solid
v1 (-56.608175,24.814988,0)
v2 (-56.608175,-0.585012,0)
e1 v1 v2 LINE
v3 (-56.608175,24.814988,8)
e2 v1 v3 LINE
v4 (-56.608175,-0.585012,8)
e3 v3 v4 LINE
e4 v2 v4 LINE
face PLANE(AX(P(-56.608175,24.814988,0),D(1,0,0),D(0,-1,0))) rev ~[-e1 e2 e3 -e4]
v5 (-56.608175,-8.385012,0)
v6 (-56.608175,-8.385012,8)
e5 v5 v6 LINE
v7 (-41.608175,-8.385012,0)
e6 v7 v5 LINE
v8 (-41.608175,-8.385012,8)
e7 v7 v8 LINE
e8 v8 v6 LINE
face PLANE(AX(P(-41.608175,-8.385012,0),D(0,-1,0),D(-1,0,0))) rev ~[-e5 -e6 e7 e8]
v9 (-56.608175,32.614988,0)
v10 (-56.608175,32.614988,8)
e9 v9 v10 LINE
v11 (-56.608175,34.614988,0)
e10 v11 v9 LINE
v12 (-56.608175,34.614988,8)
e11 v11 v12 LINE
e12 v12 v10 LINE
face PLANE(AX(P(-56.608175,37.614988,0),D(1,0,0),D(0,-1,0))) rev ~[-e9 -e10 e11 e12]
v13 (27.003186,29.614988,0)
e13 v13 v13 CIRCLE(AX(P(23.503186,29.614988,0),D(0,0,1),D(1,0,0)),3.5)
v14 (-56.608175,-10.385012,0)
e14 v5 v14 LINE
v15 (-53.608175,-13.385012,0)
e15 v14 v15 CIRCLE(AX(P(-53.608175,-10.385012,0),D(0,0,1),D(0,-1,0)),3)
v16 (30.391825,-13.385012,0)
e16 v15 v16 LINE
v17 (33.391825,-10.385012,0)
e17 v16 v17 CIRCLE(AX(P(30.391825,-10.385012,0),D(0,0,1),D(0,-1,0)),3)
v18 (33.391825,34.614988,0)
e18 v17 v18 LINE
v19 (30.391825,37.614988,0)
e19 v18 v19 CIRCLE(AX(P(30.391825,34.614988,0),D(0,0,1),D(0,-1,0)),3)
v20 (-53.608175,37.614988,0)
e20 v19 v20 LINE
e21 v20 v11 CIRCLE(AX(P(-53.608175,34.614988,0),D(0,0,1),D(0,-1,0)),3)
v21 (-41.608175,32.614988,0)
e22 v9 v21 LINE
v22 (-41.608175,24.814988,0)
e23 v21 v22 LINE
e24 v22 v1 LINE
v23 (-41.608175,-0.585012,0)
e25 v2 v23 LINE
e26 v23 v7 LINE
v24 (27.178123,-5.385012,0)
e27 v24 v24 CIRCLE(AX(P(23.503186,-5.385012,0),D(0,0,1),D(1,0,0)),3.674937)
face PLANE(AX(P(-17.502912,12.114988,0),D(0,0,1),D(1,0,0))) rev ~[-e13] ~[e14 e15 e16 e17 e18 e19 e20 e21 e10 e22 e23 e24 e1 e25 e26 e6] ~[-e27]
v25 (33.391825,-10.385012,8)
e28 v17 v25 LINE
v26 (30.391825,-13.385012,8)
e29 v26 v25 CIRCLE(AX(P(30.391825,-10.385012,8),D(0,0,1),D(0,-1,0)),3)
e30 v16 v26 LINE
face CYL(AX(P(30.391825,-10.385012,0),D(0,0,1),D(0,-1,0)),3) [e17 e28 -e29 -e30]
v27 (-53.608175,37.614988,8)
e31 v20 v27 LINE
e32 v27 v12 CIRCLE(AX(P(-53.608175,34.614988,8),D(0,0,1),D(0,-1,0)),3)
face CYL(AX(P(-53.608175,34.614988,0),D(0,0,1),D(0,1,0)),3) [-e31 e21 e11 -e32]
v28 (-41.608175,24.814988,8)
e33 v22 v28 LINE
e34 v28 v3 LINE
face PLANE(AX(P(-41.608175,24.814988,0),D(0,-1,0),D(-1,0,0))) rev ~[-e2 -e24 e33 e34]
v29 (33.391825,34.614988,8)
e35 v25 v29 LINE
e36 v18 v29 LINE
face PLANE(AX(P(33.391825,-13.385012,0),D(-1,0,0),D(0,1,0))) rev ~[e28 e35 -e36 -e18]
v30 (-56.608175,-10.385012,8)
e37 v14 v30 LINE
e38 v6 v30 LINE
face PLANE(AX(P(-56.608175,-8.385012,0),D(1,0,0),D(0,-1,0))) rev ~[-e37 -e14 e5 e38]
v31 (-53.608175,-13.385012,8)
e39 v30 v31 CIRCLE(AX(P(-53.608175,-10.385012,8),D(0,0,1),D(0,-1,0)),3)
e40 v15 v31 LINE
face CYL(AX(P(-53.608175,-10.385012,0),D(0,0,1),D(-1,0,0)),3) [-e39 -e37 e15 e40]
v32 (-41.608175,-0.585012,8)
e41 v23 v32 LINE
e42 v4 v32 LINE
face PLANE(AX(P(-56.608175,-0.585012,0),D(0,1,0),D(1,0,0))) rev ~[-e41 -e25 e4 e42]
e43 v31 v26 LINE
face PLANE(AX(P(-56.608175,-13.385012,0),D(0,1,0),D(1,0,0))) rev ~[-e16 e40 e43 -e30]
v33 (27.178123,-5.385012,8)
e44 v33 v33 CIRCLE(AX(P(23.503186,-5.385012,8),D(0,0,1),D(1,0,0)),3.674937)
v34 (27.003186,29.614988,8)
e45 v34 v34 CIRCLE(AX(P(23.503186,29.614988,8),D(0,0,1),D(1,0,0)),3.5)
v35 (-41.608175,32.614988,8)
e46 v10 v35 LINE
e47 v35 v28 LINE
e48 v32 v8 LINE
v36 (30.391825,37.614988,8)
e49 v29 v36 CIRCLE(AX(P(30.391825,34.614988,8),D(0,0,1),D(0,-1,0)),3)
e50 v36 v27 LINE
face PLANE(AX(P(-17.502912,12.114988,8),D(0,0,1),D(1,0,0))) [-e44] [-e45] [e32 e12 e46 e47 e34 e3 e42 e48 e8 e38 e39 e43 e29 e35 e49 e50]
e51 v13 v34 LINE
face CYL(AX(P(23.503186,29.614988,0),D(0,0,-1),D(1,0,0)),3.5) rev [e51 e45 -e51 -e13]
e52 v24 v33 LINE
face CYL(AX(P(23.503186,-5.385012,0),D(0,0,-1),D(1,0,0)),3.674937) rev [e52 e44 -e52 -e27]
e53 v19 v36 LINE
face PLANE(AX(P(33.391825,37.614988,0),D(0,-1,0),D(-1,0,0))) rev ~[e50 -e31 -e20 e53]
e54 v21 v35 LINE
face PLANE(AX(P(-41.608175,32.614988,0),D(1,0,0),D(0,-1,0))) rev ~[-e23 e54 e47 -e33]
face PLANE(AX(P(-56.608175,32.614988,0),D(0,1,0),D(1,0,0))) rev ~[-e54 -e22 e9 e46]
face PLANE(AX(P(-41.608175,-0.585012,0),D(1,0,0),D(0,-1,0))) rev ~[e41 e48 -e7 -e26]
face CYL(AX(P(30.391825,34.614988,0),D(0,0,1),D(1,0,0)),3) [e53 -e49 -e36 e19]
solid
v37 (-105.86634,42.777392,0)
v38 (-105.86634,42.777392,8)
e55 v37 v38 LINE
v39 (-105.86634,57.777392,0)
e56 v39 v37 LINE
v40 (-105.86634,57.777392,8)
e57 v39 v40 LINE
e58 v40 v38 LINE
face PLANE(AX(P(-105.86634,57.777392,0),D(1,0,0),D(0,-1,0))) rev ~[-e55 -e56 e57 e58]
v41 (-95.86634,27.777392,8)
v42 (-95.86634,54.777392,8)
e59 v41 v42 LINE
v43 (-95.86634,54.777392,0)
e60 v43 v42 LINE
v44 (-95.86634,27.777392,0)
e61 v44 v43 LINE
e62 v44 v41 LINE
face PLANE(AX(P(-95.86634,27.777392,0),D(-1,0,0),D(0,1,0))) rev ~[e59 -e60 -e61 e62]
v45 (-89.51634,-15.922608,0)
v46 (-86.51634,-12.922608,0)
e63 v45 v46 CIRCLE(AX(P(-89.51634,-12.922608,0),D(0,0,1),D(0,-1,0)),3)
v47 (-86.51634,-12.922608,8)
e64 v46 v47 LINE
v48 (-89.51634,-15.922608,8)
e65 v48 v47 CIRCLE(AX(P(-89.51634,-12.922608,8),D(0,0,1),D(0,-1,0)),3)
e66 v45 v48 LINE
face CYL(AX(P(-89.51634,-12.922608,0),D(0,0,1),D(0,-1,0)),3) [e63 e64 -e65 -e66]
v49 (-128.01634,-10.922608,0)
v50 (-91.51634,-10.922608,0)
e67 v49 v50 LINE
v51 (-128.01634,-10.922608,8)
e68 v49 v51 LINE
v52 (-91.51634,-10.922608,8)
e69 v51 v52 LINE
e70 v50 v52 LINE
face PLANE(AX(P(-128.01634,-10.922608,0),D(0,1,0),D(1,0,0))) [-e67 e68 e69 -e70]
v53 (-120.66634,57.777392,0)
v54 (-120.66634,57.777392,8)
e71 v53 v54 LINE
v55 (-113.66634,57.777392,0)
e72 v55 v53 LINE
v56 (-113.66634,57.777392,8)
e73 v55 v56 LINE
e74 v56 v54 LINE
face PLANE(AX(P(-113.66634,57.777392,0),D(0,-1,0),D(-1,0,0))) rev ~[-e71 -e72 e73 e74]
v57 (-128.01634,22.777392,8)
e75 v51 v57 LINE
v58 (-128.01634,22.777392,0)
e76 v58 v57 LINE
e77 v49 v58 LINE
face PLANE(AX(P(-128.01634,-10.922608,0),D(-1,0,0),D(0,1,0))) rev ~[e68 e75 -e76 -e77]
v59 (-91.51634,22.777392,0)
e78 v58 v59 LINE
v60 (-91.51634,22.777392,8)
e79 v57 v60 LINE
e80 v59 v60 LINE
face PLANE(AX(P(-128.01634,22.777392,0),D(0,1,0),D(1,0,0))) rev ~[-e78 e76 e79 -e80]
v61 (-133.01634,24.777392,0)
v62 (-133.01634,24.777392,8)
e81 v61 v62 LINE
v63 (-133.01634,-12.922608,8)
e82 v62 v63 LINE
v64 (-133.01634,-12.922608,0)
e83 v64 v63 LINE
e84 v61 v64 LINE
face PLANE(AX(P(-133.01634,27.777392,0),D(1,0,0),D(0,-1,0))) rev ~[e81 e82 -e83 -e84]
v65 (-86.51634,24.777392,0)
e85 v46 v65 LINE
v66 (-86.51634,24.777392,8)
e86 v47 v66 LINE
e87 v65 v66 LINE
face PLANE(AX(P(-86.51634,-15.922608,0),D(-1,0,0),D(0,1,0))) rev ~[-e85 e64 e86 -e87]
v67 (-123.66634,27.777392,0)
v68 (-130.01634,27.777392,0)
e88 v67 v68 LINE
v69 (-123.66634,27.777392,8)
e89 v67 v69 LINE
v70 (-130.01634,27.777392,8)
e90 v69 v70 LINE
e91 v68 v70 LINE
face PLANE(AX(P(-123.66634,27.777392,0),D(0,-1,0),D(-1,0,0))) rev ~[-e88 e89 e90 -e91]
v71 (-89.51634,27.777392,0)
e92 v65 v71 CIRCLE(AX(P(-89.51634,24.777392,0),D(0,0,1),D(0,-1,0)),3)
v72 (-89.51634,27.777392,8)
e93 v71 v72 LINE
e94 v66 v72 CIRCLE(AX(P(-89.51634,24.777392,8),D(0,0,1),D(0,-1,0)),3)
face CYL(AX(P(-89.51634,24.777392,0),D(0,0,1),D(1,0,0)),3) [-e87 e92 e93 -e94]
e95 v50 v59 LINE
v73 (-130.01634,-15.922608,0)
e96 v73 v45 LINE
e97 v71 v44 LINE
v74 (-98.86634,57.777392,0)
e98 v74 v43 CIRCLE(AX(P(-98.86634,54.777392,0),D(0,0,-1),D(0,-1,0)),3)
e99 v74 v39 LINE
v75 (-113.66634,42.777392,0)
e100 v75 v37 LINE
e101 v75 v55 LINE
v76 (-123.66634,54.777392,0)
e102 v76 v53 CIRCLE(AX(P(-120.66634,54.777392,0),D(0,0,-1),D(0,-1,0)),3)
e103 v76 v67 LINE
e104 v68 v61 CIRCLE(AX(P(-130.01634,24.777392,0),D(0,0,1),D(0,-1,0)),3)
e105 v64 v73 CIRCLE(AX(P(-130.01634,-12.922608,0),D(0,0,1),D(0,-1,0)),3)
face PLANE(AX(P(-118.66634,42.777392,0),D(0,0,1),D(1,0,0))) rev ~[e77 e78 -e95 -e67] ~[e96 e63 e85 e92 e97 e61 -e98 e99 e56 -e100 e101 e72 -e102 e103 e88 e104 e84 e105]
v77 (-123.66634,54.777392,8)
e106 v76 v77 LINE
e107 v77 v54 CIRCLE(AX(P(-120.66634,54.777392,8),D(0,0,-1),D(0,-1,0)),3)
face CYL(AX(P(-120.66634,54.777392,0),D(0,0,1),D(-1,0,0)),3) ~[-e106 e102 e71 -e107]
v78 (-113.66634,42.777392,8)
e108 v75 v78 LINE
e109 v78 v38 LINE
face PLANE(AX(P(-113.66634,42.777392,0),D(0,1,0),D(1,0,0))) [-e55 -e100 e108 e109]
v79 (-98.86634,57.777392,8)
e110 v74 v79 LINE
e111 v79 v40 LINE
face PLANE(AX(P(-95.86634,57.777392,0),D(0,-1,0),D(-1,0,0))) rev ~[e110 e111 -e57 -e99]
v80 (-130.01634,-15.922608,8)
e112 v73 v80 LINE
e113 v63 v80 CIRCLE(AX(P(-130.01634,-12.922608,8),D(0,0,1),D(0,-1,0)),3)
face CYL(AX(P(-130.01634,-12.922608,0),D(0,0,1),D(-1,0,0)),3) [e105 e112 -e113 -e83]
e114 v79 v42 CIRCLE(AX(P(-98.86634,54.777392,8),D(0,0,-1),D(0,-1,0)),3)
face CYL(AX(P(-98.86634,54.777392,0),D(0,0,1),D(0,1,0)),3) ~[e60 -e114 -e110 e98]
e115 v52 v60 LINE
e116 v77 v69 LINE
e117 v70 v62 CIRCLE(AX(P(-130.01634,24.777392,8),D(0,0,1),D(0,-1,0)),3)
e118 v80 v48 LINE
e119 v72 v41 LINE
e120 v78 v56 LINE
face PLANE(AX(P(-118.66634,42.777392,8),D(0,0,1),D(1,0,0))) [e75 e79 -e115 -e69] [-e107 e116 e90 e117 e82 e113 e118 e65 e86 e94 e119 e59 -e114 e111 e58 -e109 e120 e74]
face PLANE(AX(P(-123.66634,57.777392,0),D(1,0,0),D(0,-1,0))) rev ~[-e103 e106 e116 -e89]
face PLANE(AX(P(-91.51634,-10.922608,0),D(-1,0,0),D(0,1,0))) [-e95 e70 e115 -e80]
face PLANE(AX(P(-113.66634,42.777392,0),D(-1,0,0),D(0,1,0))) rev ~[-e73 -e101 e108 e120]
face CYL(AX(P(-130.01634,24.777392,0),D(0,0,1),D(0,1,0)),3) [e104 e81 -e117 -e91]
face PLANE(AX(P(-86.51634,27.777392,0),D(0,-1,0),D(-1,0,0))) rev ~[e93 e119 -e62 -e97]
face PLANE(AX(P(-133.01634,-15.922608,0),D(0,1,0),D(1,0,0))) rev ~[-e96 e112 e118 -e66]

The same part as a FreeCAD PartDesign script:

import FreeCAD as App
import Part
import Sketcher
from FreeCAD import Vector
Q = App.Units.Quantity


def edges_at(feature, points):
    """Names of the edges that pass closest to the given points."""
    edges = feature.Shape.Edges
    near = lambda p: min(range(len(edges)), key=lambda i: edges[i].distToShape(Part.Vertex(*p))[0])
    return sorted({f"Edge{near(p) + 1}" for p in points})


def add_polygon(sketch, points):
    """Adds a closed chain of lines whose ends are joined by coincident constraints."""
    first, n = sketch.GeometryCount, len(points)
    for a, b in zip(points, points[1:] + points[:1]):
        sketch.addGeometry(Part.LineSegment(App.Vector(*a, 0), App.Vector(*b, 0)), False)
    for i in range(n):
        sketch.addConstraint(Sketcher.Constraint("Coincident", first + i, 2, first + (i + 1) % n, 1))

doc = App.newDocument("Part")
body = doc.addObject("PartDesign::Body", "Body")

sketch1 = body.newObject("Sketcher::SketchObject", "Sketch")
sketch1.AttachmentSupport = (doc.getObject("XY_Plane"), [""])
sketch1.MapMode = "FlatFace"
add_polygon(sketch1, [(-56.608175, -8.385012), (-56.608175, -13.385012), (33.391825, -13.385012), (33.391825, 37.614988), (-56.608175, 37.614988), (-56.608175, 32.614988), (-41.608175, 32.614988), (-41.608175, 24.814988), (-56.608175, 24.814988), (-56.608175, -0.585012), (-41.608175, -0.585012), (-41.608175, -8.385012)])
sketch1.addGeometry(Part.Circle(Vector(23.503186, -5.385012, 0), Vector(0, 0, 1), 3.674937), False)
sketch1.addGeometry(Part.Circle(Vector(23.503186, 29.614988, 0), Vector(0, 0, 1), 3.5), False)
sketch1.addConstraint([
    Sketcher.Constraint("Vertical", 0),
    Sketcher.Constraint("Horizontal", 1),
    Sketcher.Constraint("Vertical", 2),
    Sketcher.Constraint("Horizontal", 3),
    Sketcher.Constraint("Vertical", 4),
    Sketcher.Constraint("Horizontal", 5),
    Sketcher.Constraint("Vertical", 6),
    Sketcher.Constraint("Horizontal", 7),
    Sketcher.Constraint("Vertical", 8),
    Sketcher.Constraint("Horizontal", 9),
    Sketcher.Constraint("Vertical", 10),
    Sketcher.Constraint("Horizontal", 11),
    Sketcher.Constraint("Vertical", 12, 3, 13, 3),
    Sketcher.Constraint("Vertical", 0, 2, 3, 2),
    Sketcher.Constraint("Vertical", 4, 2, 7, 2),
    Sketcher.Constraint("Vertical", 6, 2, 9, 2),
    Sketcher.Constraint("Equal", 0, 4),
    Sketcher.Constraint("Equal", 6, 10),
    Sketcher.Constraint("Diameter", 13, Q("7 mm")),
    Sketcher.Constraint("DistanceX", 1, 1, 1, 2, Q("90 mm")),
    Sketcher.Constraint("DistanceX", 5, 1, 5, 2, Q("15 mm")),
    Sketcher.Constraint("DistanceY", 0, 2, 0, 1, Q("5 mm")),
    Sketcher.Constraint("DistanceY", 2, 1, 2, 2, Q("51 mm")),
    Sketcher.Constraint("DistanceY", 6, 2, 6, 1, Q("7.8 mm")),
    Sketcher.Constraint("DistanceY", 12, 3, 13, 3, Q("35 mm")),
    Sketcher.Constraint("DistanceY", 0, 2, 12, 3, Q("8 mm")),
    Sketcher.Constraint("Diameter", 12, Q("7.349874 mm")),
    Sketcher.Constraint("DistanceY", 12, 3, -1, 1, Q("5.385012 mm")),
    Sketcher.Constraint("DistanceX", 0, 2, 12, 3, Q("80.111361 mm")),
    Sketcher.Constraint("DistanceX", -1, 1, 12, 3, Q("23.503186 mm")),
])
pad1 = body.newObject("PartDesign::Pad", "Pad")
pad1.Profile = sketch1
pad1.Length = 8
doc.recompute()

fillet = body.newObject("PartDesign::Fillet", "Fillet")
fillet.Base = (pad1, edges_at(pad1, [
    (33.392, -13.385, 4),
    (33.392, 37.615, 4),
    (-56.608, -13.385, 4),
    (-56.608, 37.615, 4),
]))
fillet.Radius = 3
body2 = doc.addObject("PartDesign::Body", "Body001")

sketch2 = body2.newObject("Sketcher::SketchObject", "Sketch001")
sketch2.AttachmentSupport = (doc.getObject("XY_Plane001"), [""])
sketch2.MapMode = "FlatFace"
add_polygon(sketch2, [(-123.66634, 57.777392), (-123.66634, 27.777392), (-133.01634, 27.777392), (-133.01634, -15.922608), (-86.51634, -15.922608), (-86.51634, 27.777392), (-95.86634, 27.777392), (-95.86634, 57.777392), (-105.86634, 57.777392), (-105.86634, 42.777392), (-113.66634, 42.777392), (-113.66634, 57.777392)])
add_polygon(sketch2, [(-91.51634, -10.922608), (-128.01634, -10.922608), (-128.01634, 22.777392), (-91.51634, 22.777392)])
sketch2.addConstraint([
    Sketcher.Constraint("Vertical", 0),
    Sketcher.Constraint("Horizontal", 1),
    Sketcher.Constraint("Vertical", 2),
    Sketcher.Constraint("Horizontal", 3),
    Sketcher.Constraint("Vertical", 4),
    Sketcher.Constraint("Horizontal", 5),
    Sketcher.Constraint("Vertical", 6),
    Sketcher.Constraint("Horizontal", 7),
    Sketcher.Constraint("Vertical", 8),
    Sketcher.Constraint("Horizontal", 9),
    Sketcher.Constraint("Vertical", 10),
    Sketcher.Constraint("Horizontal", 11),
    Sketcher.Constraint("Horizontal", 12),
    Sketcher.Constraint("Vertical", 13),
    Sketcher.Constraint("Horizontal", 14),
    Sketcher.Constraint("Vertical", 15),
    Sketcher.Constraint("Horizontal", 1, 2, 4, 2),
    Sketcher.Constraint("Horizontal", 7, 2, 10, 2),
    Sketcher.Constraint("Equal", 1, 5),
    Sketcher.Constraint("Equal", 7, 11),
    Sketcher.Constraint("DistanceX", 7, 2, 7, 1, Q("10 mm")),
    Sketcher.Constraint("DistanceY", 0, 2, 0, 1, Q("30 mm")),
    Sketcher.Constraint("DistanceY", 8, 2, 8, 1, Q("15 mm")),
    Sketcher.Constraint("DistanceX", 3, 1, 3, 2, Q("46.5 mm")),
    Sketcher.Constraint("DistanceX", 9, 2, 9, 1, Q("7.8 mm")),
    Sketcher.Constraint("DistanceX", 12, 2, 12, 1, Q("36.5 mm")),
    Sketcher.Constraint("DistanceY", 2, 2, 2, 1, Q("43.7 mm")),
    Sketcher.Constraint("DistanceY", 13, 1, 13, 2, Q("33.7 mm")),
    Sketcher.Constraint("DistanceX", 2, 2, 12, 2, Q("5 mm")),
    Sketcher.Constraint("DistanceY", 2, 2, 12, 2, Q("5 mm")),
    Sketcher.Constraint("DistanceX", 0, 2, -1, 1, Q("123.66634 mm")),
    Sketcher.Constraint("DistanceY", -1, 1, 0, 2, Q("27.777392 mm")),
])
pad2 = body2.newObject("PartDesign::Pad", "Pad001")
pad2.Profile = sketch2
pad2.Length = 8
doc.recompute()

fillet2 = body2.newObject("PartDesign::Fillet", "Fillet001")
fillet2.Base = (pad2, edges_at(pad2, [
    (-133.016, -15.923, 4),
    (-86.516, -15.923, 4),
    (-86.516, 27.777, 4),
    (-133.016, 27.777, 4),
    (-95.866, 57.777, 4),
    (-123.666, 57.777, 4),
]))
fillet2.Radius = 3

doc.recompute()
